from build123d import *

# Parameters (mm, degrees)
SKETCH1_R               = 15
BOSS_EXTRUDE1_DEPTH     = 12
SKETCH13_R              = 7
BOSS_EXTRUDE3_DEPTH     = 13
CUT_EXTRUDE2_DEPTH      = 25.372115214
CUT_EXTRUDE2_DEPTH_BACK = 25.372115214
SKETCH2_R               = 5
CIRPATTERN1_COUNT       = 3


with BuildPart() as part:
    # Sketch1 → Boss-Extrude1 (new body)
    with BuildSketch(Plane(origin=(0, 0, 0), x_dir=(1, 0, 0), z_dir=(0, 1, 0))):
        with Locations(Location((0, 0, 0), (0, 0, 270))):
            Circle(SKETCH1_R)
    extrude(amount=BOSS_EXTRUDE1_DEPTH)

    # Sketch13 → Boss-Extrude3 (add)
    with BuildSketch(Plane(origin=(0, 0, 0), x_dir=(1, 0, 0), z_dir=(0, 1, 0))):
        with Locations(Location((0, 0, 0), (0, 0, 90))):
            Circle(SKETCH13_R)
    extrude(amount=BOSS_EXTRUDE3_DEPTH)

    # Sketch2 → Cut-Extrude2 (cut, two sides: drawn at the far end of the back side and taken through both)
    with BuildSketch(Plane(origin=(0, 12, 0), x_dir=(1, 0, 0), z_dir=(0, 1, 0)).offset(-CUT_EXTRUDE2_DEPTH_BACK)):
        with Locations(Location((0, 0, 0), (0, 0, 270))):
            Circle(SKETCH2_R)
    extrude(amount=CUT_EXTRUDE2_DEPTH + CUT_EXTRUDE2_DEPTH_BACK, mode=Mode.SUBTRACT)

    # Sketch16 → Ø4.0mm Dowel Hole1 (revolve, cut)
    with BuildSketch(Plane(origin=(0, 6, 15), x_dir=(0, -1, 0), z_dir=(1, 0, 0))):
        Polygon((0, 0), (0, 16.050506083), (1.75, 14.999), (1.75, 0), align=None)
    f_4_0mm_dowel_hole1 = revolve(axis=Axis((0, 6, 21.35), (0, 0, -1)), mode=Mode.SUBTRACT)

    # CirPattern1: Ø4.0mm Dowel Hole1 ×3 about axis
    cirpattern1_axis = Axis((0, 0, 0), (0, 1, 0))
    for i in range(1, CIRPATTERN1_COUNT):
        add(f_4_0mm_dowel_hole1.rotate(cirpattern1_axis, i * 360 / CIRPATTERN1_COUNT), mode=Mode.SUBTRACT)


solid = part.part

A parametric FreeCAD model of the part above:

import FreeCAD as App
import Part
import Sketcher
from FreeCAD import Vector
Q = App.Units.Quantity

doc = App.newDocument("Part")
body = doc.addObject("PartDesign::Body", "Body")

sketch1 = body.newObject("Sketcher::SketchObject", "Sketch")
sketch1.AttachmentSupport = (doc.getObject("XZ_Plane"), [""])
sketch1.MapMode = "FlatFace"
sketch1.addGeometry(Part.Circle(Vector(0, 0, 0), Vector(0, 0, 1), 15), False)
sketch1.addConstraint([
    Sketcher.Constraint("Coincident", 0, 3, -1, 1),
    Sketcher.Constraint("Diameter", 0, 30.0),
])
pad1 = body.newObject("PartDesign::Pad", "Pad")
pad1.Profile = sketch1
pad1.Length = 12
pad1.Reversed = True

sketch2 = body.newObject("Sketcher::SketchObject", "Sketch001")
sketch2.AttachmentSupport = (doc.getObject("XZ_Plane"), [""])
sketch2.MapMode = "FlatFace"
sketch2.addGeometry(Part.Circle(Vector(0, 0, 0), Vector(0, 0, 1), 7), False)
sketch2.addConstraint([
    Sketcher.Constraint("Coincident", 0, 3, -1, 1),
    Sketcher.Constraint("Diameter", 0, 14.0),
])
pad2 = body.newObject("PartDesign::Pad", "Pad001")
pad2.Profile = sketch2
pad2.Length = 13
pad2.Reversed = True

sketch3 = body.newObject("Sketcher::SketchObject", "Sketch002")
sketch3.AttachmentSupport = (doc.getObject("XZ_Plane"), [""])
sketch3.MapMode = "FlatFace"
sketch3.AttachmentOffset = App.Placement(Vector(0, 0, -12), App.Rotation())
sketch3.addGeometry(Part.Circle(Vector(0, 0, 0), Vector(0, 0, 1), 5), False)
sketch3.addConstraint([
    Sketcher.Constraint("Coincident", 0, 3, -1, 1),
    Sketcher.Constraint("Diameter", 0, 10.0),
])
pocket1 = body.newObject("PartDesign::Pocket", "Pocket")
pocket1.Profile = sketch3
pocket1.Type = "ThroughAll"
pocket1.Midplane = True

sketch4 = body.newObject("Sketcher::SketchObject", "Sketch003")
sketch4.AttachmentSupport = (doc.getObject("YZ_Plane"), [""])
sketch4.MapMode = "FlatFace"
sketch4.addGeometry([
    Part.LineSegment(Vector(6, -1.050506, 0), Vector(6, 15, 0)),
    Part.LineSegment(Vector(6, 15, 0), Vector(4.25, 15, 0)),
    Part.LineSegment(Vector(4.25, 15, 0), Vector(4.25, 0.001, 0)),
    Part.LineSegment(Vector(4.25, 0.001, 0), Vector(6, -1.050506, 0)),
], False)
sketch4.addGeometry(Part.LineSegment(Vector(6, 15, 0), Vector(6, -1.050506, 0)), True)
sketch4.addConstraint([
    Sketcher.Constraint("Coincident", 0, 2, 1, 1),
    Sketcher.Constraint("Coincident", 1, 2, 2, 1),
    Sketcher.Constraint("Coincident", 2, 2, 3, 1),
    Sketcher.Constraint("Coincident", 3, 2, 0, 1),
    Sketcher.Constraint("Vertical", 0),
    Sketcher.Constraint("Horizontal", 1),
    Sketcher.Constraint("Vertical", 2),
    Sketcher.Constraint("Vertical", 4),
    Sketcher.Constraint("Coincident", 4, 1, 0, 2),
    Sketcher.Constraint("Equal", 0, 4),
    Sketcher.Constraint("Angle", 3, Q("-31 deg")),
    Sketcher.Constraint("DistanceX", -1, 1, 0, 2, 6.0),
    Sketcher.Constraint("DistanceY", -1, 1, 0, 2, 15.0),
    Sketcher.Constraint("DistanceX", 1, 2, 1, 1, 1.75),
    Sketcher.Constraint("DistanceY", 2, 2, 2, 1, 14.999),
])
groove = body.newObject("PartDesign::Groove", "Groove")
groove.Profile = sketch4
groove.ReferenceAxis = (sketch4, ["Axis0"])
groove.Angle = 360
doc.recompute()

polarpattern = body.newObject("PartDesign::PolarPattern", "PolarPattern")
polarpattern.Originals = [groove]
polarpattern.Axis = (doc.getObject("Y_Axis"), [""])
polarpattern.Angle = 360
polarpattern.Occurrences = 3
body.Tip = polarpattern

doc.recompute()
